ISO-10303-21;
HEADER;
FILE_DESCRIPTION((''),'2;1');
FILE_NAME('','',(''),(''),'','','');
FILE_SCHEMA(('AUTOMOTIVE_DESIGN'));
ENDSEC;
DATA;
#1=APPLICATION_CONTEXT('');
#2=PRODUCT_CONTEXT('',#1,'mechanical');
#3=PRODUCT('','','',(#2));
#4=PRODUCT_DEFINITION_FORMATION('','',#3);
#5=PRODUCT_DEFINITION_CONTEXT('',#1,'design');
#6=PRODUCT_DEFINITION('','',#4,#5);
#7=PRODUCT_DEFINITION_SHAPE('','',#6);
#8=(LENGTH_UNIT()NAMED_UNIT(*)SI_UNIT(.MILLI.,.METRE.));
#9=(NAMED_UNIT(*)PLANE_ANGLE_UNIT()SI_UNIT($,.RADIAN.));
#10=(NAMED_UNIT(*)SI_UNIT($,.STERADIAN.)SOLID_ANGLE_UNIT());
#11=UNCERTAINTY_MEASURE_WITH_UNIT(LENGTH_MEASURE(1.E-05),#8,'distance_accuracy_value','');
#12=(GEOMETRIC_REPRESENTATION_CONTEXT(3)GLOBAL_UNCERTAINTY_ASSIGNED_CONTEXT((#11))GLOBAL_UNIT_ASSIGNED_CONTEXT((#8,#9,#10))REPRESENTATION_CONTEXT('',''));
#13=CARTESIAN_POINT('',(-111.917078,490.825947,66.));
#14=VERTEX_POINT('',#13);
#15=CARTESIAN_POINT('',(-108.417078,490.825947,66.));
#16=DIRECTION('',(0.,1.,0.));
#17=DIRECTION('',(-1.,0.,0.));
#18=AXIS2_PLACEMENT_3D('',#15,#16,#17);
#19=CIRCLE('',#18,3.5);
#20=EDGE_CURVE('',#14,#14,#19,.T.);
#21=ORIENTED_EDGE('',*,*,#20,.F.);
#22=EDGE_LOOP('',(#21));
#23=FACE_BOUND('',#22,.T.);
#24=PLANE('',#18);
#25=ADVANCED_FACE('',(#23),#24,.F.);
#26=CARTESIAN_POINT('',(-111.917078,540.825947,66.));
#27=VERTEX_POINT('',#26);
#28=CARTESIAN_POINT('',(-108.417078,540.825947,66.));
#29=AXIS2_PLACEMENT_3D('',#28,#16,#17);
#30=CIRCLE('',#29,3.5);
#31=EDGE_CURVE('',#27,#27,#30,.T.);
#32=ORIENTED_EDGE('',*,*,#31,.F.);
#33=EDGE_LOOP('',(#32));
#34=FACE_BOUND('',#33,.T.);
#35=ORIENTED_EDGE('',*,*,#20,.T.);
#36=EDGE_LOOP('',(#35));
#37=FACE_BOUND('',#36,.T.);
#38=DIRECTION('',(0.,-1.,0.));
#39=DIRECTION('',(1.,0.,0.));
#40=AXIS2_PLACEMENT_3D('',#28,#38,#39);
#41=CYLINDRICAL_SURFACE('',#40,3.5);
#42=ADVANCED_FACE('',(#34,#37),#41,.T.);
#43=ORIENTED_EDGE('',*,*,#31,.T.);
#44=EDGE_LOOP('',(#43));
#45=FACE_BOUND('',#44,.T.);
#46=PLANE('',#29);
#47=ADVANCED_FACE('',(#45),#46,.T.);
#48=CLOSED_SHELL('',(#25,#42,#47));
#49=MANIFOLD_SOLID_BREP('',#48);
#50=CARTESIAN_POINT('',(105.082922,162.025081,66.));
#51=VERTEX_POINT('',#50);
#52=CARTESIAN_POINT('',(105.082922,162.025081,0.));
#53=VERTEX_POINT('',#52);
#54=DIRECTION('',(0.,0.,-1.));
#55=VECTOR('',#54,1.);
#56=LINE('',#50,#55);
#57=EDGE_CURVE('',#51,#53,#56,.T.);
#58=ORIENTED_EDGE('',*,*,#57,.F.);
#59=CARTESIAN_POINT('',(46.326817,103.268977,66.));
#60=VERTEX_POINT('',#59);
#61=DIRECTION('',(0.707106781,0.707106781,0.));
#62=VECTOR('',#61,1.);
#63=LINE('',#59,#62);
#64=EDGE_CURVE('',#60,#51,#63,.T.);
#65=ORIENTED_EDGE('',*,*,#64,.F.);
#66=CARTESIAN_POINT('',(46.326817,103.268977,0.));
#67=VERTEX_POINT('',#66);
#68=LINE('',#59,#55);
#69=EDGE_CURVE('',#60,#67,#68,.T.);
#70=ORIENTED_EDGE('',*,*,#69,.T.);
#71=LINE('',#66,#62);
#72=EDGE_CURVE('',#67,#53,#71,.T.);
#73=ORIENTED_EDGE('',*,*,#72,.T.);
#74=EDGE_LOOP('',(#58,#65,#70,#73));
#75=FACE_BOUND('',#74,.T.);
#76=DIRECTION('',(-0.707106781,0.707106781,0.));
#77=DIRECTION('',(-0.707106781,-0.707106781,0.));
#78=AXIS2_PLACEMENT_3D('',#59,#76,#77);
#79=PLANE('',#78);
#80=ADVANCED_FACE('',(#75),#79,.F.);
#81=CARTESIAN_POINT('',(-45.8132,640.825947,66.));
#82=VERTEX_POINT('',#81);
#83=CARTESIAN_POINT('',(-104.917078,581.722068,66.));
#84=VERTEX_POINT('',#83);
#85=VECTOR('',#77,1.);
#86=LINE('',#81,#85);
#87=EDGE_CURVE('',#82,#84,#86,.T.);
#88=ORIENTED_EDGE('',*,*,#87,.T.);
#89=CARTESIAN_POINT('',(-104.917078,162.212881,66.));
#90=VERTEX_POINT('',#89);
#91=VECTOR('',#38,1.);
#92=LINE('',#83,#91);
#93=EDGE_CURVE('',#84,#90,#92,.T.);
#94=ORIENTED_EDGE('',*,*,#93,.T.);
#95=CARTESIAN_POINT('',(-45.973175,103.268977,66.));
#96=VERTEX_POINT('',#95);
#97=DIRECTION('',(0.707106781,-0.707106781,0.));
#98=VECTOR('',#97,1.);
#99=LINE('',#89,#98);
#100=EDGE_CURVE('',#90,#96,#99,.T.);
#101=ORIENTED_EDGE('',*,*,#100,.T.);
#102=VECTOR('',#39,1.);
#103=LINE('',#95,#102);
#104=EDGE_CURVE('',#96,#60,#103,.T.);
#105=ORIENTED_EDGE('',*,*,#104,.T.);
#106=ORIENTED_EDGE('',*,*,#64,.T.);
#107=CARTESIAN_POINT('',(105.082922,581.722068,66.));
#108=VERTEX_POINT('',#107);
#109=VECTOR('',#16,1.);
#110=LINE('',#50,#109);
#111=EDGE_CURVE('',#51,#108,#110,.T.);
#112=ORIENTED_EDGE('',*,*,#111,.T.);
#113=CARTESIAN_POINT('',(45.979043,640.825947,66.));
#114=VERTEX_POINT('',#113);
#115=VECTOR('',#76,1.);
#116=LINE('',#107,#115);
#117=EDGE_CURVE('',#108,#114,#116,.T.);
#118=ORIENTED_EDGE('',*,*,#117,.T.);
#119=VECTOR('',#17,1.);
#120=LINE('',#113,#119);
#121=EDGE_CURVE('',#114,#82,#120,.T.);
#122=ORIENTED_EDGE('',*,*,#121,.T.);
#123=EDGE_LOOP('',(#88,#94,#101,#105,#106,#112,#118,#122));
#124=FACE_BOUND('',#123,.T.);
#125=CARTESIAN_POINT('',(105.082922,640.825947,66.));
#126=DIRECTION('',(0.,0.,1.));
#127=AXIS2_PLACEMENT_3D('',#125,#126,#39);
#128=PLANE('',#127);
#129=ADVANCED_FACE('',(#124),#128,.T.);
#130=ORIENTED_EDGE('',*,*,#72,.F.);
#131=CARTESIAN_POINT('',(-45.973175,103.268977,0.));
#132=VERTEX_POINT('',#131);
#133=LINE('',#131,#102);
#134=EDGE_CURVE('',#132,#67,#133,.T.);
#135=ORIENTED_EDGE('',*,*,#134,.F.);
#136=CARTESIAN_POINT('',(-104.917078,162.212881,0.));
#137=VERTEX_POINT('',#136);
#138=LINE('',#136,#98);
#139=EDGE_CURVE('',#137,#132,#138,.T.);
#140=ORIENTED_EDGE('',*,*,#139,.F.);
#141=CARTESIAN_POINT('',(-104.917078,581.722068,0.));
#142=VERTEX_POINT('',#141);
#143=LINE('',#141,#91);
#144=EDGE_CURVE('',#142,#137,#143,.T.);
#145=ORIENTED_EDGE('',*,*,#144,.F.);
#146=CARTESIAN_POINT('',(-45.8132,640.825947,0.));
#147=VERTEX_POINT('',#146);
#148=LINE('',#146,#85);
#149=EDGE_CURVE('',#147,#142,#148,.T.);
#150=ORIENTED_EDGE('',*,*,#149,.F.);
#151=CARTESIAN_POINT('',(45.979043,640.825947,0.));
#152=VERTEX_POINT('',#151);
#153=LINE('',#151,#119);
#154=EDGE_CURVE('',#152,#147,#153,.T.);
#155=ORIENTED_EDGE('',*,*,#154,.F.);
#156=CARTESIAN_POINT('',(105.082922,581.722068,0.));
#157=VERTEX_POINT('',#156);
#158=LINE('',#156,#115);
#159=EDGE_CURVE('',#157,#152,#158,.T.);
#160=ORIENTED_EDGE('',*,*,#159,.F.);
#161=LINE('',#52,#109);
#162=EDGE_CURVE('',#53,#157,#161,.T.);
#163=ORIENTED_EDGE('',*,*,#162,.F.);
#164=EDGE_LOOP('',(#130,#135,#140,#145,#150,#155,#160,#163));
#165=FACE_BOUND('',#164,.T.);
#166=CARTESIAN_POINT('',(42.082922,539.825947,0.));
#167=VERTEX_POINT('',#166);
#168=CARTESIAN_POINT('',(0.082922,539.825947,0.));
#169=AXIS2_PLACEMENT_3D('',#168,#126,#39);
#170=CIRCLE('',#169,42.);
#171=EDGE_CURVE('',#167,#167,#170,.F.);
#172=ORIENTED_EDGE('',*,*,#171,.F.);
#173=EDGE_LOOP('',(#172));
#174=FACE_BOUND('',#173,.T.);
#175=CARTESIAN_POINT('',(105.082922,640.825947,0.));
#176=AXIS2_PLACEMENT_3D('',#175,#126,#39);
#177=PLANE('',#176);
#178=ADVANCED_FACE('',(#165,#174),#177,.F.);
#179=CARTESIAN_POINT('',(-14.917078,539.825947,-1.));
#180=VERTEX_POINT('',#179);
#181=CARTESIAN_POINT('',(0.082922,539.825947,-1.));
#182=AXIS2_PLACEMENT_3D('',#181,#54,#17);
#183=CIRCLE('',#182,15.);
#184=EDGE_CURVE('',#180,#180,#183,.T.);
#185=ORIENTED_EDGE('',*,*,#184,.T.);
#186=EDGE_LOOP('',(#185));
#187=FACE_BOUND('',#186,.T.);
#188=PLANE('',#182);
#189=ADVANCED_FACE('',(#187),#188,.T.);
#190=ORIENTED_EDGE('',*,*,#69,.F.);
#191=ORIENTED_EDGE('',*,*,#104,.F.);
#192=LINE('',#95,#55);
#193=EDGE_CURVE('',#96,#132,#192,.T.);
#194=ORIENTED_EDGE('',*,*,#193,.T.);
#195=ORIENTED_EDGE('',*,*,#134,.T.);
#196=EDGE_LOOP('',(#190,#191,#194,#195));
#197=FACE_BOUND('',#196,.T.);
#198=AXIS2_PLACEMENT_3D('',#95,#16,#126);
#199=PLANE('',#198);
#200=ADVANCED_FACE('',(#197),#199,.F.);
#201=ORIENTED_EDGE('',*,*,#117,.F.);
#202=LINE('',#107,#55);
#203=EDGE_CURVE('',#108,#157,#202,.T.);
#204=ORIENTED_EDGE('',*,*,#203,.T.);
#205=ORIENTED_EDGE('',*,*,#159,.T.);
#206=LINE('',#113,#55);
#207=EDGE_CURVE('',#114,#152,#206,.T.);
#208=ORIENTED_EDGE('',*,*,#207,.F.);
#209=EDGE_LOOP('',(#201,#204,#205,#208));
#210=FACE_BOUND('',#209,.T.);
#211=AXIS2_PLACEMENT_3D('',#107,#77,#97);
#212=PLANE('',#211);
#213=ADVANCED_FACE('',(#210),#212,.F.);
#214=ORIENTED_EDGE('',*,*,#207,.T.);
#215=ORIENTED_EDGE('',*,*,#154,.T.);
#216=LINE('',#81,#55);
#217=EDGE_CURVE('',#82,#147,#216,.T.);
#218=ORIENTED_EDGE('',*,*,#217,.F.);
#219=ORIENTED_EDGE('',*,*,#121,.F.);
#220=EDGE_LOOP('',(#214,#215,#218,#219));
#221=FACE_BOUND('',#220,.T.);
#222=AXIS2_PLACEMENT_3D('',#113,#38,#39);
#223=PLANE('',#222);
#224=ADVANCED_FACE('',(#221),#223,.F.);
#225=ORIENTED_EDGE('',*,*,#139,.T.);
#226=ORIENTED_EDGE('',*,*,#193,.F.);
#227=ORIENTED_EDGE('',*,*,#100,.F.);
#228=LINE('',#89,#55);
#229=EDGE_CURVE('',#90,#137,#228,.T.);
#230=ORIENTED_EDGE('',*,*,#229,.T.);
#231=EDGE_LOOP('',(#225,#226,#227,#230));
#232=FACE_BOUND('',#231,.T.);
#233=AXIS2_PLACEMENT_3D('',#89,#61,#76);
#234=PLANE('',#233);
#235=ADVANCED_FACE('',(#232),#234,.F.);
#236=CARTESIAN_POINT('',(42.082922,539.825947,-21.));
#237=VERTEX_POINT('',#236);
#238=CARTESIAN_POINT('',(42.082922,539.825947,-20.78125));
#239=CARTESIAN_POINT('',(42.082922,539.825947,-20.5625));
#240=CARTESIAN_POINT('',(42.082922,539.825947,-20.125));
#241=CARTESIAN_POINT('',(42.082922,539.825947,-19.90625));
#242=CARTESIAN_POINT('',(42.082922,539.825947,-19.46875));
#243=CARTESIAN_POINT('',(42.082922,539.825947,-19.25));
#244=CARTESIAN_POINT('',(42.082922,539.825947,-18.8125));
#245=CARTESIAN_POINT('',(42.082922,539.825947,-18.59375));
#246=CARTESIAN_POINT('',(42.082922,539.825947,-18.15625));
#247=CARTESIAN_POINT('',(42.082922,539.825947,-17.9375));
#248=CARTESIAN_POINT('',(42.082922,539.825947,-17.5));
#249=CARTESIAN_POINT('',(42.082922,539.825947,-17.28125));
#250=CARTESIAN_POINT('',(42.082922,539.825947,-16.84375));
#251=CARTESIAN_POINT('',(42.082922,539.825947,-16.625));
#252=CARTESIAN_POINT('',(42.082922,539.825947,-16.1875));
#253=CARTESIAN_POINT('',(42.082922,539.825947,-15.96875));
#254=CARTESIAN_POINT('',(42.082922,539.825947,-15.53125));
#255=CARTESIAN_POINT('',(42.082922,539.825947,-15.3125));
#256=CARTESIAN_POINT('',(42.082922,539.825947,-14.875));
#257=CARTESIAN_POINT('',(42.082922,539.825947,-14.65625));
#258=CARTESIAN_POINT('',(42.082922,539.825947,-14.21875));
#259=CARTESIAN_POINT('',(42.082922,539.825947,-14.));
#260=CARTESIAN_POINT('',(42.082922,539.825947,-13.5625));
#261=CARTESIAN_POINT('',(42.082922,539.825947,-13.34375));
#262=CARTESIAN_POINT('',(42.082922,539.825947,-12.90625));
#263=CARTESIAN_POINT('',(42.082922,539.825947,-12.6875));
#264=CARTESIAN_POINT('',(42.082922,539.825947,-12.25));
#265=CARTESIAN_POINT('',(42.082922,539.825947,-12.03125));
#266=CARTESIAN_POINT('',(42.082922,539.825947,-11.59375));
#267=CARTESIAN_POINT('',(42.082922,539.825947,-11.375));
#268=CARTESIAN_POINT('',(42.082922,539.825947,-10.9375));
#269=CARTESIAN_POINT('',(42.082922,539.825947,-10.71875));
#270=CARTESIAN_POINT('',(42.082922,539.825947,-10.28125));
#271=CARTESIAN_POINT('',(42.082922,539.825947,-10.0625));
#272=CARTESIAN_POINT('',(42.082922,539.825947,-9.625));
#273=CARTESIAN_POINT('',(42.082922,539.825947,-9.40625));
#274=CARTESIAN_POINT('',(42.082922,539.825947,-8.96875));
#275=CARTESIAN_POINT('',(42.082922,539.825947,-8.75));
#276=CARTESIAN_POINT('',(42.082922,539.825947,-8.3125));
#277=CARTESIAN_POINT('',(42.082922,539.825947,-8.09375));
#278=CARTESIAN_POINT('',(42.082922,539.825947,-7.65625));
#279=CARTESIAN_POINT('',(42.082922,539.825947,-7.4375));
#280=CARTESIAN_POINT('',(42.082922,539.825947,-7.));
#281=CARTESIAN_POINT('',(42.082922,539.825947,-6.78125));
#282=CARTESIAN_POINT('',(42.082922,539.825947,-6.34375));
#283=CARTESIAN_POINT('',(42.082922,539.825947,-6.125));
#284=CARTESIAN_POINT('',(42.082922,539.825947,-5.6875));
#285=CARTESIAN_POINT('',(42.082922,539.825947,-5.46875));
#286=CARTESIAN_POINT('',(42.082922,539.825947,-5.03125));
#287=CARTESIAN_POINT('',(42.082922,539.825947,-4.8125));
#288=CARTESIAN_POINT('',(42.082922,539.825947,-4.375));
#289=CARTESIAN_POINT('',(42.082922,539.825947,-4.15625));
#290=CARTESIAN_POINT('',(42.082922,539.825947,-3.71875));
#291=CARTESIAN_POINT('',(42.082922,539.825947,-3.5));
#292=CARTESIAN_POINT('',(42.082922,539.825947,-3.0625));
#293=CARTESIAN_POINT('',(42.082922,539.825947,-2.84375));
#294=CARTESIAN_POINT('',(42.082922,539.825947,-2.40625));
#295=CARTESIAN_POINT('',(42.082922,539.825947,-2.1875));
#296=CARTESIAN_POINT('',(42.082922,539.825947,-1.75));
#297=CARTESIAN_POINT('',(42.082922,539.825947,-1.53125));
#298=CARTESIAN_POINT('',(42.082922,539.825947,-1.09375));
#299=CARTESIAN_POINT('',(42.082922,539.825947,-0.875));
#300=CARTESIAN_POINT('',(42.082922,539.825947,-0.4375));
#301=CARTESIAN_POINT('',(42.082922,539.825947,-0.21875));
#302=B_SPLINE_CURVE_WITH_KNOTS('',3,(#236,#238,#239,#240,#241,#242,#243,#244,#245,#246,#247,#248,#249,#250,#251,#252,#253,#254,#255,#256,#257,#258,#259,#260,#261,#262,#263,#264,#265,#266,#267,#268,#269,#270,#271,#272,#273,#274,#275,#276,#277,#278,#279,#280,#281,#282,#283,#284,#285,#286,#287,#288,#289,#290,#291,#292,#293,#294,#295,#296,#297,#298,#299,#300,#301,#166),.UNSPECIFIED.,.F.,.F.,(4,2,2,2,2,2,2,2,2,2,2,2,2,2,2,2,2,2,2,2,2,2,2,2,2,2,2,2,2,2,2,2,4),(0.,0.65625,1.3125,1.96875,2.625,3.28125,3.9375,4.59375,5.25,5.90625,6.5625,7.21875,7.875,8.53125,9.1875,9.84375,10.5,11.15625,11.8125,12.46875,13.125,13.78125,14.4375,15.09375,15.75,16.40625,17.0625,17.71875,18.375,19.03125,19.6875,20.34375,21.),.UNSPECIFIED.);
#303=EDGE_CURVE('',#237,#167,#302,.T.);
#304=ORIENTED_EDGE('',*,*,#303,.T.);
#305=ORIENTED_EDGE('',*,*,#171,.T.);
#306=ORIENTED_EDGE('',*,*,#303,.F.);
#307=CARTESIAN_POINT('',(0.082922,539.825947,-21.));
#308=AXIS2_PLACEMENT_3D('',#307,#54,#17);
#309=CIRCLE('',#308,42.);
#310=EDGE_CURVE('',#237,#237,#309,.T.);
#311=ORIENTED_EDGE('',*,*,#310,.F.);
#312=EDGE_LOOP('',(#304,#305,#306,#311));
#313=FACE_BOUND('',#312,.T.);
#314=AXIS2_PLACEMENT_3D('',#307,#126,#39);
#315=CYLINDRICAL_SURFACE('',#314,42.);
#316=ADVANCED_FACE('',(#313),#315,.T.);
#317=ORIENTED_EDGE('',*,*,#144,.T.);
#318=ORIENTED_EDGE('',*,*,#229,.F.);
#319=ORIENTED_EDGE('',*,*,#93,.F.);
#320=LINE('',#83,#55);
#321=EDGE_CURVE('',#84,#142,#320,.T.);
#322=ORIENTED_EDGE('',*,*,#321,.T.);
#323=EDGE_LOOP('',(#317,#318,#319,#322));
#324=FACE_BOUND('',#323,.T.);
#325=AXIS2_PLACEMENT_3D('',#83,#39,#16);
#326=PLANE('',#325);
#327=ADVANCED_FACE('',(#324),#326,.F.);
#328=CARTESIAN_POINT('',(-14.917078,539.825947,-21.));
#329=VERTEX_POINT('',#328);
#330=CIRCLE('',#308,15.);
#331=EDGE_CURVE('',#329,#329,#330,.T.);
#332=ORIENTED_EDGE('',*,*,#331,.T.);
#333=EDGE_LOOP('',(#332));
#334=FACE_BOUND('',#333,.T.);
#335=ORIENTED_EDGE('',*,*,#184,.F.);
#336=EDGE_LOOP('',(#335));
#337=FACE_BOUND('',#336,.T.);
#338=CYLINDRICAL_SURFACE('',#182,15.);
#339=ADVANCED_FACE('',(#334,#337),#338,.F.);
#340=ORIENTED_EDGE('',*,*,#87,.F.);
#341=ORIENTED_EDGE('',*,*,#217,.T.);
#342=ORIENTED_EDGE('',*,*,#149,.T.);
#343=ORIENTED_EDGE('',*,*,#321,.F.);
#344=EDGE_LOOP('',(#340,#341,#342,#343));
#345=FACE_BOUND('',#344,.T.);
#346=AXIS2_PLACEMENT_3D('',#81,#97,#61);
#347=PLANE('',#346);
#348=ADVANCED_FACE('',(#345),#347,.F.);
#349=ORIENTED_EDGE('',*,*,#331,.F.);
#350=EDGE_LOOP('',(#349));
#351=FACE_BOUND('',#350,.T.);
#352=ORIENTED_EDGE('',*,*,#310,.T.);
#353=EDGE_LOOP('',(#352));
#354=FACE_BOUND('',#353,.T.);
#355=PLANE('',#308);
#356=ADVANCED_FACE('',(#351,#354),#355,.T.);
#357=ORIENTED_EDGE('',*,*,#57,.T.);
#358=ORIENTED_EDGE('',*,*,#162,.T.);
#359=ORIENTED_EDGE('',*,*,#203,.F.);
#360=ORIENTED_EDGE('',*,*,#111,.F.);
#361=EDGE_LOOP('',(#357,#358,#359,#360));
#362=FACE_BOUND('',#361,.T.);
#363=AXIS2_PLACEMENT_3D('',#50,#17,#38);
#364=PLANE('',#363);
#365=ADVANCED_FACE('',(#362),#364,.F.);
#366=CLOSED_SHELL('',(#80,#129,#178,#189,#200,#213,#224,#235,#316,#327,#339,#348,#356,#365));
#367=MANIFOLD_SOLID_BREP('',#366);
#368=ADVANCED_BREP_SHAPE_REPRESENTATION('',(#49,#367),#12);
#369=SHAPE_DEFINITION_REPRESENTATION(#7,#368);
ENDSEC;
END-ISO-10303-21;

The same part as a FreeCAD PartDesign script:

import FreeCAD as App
import Part
import Sketcher

V = App.Vector

doc = App.newDocument("Part")
body = doc.addObject("PartDesign::Body", "Body")

sketch1 = doc.addObject("Sketcher::SketchObject", "Sketch")
body.addObject(sketch1)
sketch1.AttachmentSupport = (doc.XY_Plane, [""])
sketch1.MapMode = "FlatFace"
sketch1.addGeometry([
    Part.LineSegment(V(105, 582, 0), V(46, 641, 0)),
    Part.LineSegment(V(46, 641, 0), V(-46, 641, 0)),
    Part.LineSegment(V(-46, 641, 0), V(-105, 582, 0)),
    Part.LineSegment(V(-105, 582, 0), V(-105, 162, 0)),
    Part.LineSegment(V(-105, 162, 0), V(-46, 103, 0)),
    Part.LineSegment(V(-46, 103, 0), V(46, 103, 0)),
    Part.LineSegment(V(46, 103, 0), V(105, 162, 0)),
    Part.LineSegment(V(105, 162, 0), V(105, 582, 0)),
], False)
sketch1.addConstraint([
    Sketcher.Constraint("Coincident", 0, 2, 1, 1),
    Sketcher.Constraint("Coincident", 1, 2, 2, 1),
    Sketcher.Constraint("Coincident", 2, 2, 3, 1),
    Sketcher.Constraint("Coincident", 3, 2, 4, 1),
    Sketcher.Constraint("Coincident", 4, 2, 5, 1),
    Sketcher.Constraint("Coincident", 5, 2, 6, 1),
    Sketcher.Constraint("Coincident", 6, 2, 7, 1),
    Sketcher.Constraint("Coincident", 7, 2, 0, 1),
    Sketcher.Constraint("Horizontal", 1),
    Sketcher.Constraint("Vertical", 3),
    Sketcher.Constraint("Horizontal", 5),
    Sketcher.Constraint("Vertical", 7),
    Sketcher.Constraint("Perpendicular", 0, 2),
    Sketcher.Constraint("Perpendicular", 2, 4),
    Sketcher.Constraint("Perpendicular", 4, 6),
    Sketcher.Constraint("Horizontal", 2, 2, 7, 2),
    Sketcher.Constraint("Equal", 0, 2),
    Sketcher.Constraint("DistanceX", 3, 2, 6, 2, 210.0),
    Sketcher.Constraint("DistanceX", 5, 1, 5, 2, 92.299992),
    Sketcher.Constraint("DistanceX", 1, 2, -1, 1, 45.8132),
    Sketcher.Constraint("DistanceY", 6, 2, 3, 2, 0.1878),
    Sketcher.Constraint("DistanceX", 1, 2, 1, 1, 91.792242),
    Sketcher.Constraint("DistanceY", 3, 2, 3, 1, 419.509188),
    Sketcher.Constraint("DistanceY", -1, 1, 2, 2, 581.722068),
])
pad1 = doc.addObject("PartDesign::Pad", "Pad")
body.addObject(pad1)
pad1.Profile = sketch1
pad1.Length = 66

sketch2 = doc.addObject("Sketcher::SketchObject", "Sketch001")
body.addObject(sketch2)
sketch2.AttachmentSupport = (doc.XY_Plane, [""])
sketch2.MapMode = "FlatFace"
sketch2.addGeometry(Part.Circle(V(0, 540, 0), V(0, 0, 1), 42), False)
sketch2.addConstraint([
    Sketcher.Constraint("Diameter", 0, 84.0),
    Sketcher.Constraint("DistanceX", -1, 1, 0, 3, 0.082922),
    Sketcher.Constraint("DistanceY", -1, 1, 0, 3, 539.825947),
])
pad2 = doc.addObject("PartDesign::Pad", "Pad001")
body.addObject(pad2)
pad2.Profile = sketch2
pad2.Length = 21
pad2.Reversed = True

sketch3 = doc.addObject("Sketcher::SketchObject", "Sketch002")
body.addObject(sketch3)
sketch3.AttachmentSupport = (doc.XY_Plane, [""])
sketch3.MapMode = "FlatFace"
sketch3.AttachmentOffset = App.Placement(V(0, 0, -21), App.Rotation())
sketch3.addGeometry(Part.Circle(V(0, 540, 0), V(0, 0, 1), 15), False)
sketch3.addConstraint([
    Sketcher.Constraint("Diameter", 0, 30.0),
    Sketcher.Constraint("DistanceX", -1, 1, 0, 3, 0.082922),
    Sketcher.Constraint("DistanceY", -1, 1, 0, 3, 539.825947),
])
pocket1 = doc.addObject("PartDesign::Pocket", "Pocket")
body.addObject(pocket1)
pocket1.Profile = sketch3
pocket1.Length = 20
pocket1.Reversed = True
body2 = doc.addObject("PartDesign::Body", "Body001")

sketch4 = doc.addObject("Sketcher::SketchObject", "Sketch003")
body2.addObject(sketch4)
sketch4.AttachmentSupport = (doc.getObject("XZ_Plane001"), [""])
sketch4.MapMode = "FlatFace"
sketch4.AttachmentOffset = App.Placement(V(0, 0, -490.825947), App.Rotation())
sketch4.addGeometry(Part.Circle(V(-108.4, 66, 0), V(0, 0, 1), 3.5), False)
sketch4.addConstraint([
    Sketcher.Constraint("Diameter", 0, 7.0),
    Sketcher.Constraint("DistanceY", -1, 1, 0, 3, 66.0),
    Sketcher.Constraint("DistanceX", 0, 3, -1, 1, 108.417078),
])
pad3 = doc.addObject("PartDesign::Pad", "Pad002")
body2.addObject(pad3)
pad3.Profile = sketch4
pad3.Length = 50
pad3.Reversed = True

doc.recompute()
